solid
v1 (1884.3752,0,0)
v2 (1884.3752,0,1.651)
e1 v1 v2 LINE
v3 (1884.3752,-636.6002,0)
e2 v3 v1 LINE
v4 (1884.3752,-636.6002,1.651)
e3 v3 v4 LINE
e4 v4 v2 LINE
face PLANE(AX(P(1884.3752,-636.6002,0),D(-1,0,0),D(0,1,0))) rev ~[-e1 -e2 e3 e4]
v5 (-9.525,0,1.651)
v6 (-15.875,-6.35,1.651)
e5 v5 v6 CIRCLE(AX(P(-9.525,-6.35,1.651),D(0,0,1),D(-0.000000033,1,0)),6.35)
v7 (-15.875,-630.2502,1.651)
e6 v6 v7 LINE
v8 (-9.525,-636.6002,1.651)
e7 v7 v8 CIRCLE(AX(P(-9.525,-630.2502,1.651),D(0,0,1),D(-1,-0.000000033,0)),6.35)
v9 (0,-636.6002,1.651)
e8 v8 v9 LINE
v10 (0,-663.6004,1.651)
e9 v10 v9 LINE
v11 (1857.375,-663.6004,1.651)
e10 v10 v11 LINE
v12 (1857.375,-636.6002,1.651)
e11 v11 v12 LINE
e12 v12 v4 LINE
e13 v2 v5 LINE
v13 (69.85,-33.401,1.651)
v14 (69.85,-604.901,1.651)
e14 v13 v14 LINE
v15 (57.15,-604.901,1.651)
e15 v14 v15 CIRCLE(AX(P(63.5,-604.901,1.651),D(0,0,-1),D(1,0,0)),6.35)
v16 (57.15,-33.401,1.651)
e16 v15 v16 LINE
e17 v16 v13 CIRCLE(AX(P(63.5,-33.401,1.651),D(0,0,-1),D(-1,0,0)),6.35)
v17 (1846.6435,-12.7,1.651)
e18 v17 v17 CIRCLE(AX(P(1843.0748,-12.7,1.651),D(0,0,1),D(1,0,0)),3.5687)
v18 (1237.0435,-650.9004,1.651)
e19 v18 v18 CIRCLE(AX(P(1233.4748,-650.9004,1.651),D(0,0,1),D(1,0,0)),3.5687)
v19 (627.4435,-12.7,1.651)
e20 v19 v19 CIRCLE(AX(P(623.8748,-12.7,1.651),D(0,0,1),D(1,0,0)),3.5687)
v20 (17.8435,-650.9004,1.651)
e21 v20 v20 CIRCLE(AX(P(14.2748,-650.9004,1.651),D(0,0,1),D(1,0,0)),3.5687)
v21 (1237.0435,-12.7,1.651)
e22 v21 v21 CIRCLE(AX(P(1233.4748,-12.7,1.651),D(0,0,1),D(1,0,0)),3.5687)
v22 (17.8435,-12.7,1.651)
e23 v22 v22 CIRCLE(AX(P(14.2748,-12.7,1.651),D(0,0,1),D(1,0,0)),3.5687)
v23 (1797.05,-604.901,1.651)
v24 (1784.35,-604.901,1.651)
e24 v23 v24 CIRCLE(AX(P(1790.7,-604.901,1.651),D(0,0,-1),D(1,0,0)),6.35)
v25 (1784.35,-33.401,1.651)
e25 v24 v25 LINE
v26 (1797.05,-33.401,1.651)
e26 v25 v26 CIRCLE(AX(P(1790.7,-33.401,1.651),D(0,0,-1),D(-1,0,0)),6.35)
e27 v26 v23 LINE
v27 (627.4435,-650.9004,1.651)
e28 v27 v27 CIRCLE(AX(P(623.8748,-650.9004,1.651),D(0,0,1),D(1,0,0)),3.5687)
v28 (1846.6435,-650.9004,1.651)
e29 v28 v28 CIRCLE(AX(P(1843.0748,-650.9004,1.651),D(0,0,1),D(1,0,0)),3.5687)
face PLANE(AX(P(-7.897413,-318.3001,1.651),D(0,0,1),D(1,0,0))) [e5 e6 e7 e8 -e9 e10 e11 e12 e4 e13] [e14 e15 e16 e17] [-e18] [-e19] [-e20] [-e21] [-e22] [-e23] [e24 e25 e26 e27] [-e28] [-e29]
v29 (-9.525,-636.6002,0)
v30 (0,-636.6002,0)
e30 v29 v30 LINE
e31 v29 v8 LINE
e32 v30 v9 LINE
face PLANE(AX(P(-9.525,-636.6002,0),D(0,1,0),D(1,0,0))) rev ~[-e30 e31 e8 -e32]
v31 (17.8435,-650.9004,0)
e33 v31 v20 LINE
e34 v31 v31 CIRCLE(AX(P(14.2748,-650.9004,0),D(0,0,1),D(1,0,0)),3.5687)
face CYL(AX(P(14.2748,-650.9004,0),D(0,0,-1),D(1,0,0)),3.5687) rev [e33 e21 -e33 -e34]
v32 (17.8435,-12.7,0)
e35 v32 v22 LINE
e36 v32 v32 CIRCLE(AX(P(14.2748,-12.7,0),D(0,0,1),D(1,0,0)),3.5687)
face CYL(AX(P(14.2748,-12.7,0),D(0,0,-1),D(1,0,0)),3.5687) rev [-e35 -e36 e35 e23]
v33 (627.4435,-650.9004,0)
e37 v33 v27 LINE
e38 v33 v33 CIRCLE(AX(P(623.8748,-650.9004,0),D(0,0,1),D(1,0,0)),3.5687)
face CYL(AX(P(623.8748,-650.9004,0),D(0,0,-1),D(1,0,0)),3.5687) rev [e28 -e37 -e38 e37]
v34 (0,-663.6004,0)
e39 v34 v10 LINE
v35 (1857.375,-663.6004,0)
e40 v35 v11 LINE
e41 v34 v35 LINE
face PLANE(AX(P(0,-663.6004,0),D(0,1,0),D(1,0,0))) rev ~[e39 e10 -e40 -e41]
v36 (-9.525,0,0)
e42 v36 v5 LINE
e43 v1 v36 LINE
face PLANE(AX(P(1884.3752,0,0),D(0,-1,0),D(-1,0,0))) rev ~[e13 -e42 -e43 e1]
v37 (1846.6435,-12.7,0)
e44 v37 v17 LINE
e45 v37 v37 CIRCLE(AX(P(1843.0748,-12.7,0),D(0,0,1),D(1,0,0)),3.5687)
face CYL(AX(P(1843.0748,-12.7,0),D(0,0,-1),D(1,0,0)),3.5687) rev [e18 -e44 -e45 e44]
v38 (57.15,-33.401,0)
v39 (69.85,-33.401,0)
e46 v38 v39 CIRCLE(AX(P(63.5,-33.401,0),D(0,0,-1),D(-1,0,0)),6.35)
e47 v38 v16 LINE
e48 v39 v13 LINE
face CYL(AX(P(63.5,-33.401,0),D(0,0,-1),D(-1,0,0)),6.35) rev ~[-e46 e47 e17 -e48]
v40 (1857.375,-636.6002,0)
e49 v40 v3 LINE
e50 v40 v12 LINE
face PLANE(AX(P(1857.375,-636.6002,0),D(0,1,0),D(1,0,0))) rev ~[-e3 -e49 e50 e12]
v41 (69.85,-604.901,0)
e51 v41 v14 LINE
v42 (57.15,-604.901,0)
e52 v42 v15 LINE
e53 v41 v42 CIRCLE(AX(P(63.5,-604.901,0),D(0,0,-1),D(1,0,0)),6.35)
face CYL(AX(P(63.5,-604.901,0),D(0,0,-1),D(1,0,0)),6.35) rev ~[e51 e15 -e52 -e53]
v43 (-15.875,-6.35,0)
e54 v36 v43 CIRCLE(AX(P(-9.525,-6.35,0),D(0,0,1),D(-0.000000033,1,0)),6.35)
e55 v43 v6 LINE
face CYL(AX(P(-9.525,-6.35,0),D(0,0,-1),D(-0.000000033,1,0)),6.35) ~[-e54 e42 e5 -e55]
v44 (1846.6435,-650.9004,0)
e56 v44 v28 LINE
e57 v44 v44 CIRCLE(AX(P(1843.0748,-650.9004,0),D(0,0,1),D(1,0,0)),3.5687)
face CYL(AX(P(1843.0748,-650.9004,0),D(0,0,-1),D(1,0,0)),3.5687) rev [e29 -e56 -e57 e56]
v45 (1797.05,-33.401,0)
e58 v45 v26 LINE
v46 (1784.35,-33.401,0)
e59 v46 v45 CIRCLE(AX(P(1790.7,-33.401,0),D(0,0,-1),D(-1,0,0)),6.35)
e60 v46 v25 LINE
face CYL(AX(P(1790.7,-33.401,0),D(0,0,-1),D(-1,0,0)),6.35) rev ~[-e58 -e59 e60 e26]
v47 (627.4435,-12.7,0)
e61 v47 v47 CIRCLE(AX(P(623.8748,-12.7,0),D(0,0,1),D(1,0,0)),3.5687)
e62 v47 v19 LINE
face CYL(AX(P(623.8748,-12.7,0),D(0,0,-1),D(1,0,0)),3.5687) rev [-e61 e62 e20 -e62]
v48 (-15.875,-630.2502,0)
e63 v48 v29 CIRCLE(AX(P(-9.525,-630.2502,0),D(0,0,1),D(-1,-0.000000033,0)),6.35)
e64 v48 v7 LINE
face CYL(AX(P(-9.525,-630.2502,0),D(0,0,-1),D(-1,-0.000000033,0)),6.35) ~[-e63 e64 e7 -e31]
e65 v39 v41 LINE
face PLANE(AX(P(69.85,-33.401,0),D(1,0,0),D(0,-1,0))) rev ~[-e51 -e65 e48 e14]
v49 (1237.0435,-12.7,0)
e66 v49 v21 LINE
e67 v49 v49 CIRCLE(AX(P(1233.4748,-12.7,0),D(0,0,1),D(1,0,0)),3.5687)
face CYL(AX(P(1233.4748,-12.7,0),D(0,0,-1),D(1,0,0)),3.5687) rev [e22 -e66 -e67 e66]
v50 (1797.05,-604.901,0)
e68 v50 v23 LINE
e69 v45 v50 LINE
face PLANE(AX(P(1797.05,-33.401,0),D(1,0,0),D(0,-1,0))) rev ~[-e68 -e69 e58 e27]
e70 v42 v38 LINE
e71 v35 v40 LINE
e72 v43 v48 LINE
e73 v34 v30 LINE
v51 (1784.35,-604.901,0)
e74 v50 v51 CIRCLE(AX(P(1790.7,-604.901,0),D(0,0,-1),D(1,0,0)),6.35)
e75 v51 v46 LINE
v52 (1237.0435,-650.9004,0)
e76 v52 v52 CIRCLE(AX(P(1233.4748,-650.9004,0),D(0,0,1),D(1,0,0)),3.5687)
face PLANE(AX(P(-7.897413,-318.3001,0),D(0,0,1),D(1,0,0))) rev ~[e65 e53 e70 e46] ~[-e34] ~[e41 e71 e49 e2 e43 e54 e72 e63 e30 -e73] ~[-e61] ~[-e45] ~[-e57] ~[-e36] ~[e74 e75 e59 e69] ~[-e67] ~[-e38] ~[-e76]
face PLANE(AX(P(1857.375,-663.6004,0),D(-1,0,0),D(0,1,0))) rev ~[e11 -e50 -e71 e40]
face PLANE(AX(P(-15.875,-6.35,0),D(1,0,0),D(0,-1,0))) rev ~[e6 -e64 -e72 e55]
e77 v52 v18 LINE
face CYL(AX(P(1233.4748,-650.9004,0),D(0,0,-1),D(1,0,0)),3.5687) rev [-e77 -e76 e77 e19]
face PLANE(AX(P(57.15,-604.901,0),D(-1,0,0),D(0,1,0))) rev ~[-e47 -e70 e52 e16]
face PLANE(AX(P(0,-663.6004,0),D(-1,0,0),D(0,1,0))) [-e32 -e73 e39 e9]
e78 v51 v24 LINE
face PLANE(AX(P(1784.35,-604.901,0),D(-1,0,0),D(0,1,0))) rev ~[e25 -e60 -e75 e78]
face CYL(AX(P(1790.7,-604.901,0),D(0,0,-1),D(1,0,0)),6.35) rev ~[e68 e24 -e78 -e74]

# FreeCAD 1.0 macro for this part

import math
import FreeCAD as App
import Part
import Sketcher
Q = App.Units.Quantity

doc = App.newDocument("Part")
body = doc.addObject("PartDesign::Body", "Body")

# Sketch on XY plane
sketch1 = body.newObject("Sketcher::SketchObject", "Sketch")
sketch1.AttachmentSupport = (doc.getObject("XY_Plane"), [""])
sketch1.MapMode = "FlatFace"
sketch1.addGeometry(Part.ArcOfCircle(Part.Circle(App.Vector(-9.525, -6.35, 0), App.Vector(0, 0, 1), 6.35), math.radians(90.000002), math.radians(179.999998)), False)
sketch1.addGeometry(Part.LineSegment(App.Vector(-15.875, -6.35, 0), App.Vector(-15.875, -630.2502, 0)), False)
sketch1.addGeometry(Part.ArcOfCircle(Part.Circle(App.Vector(-9.525, -630.2502, 0), App.Vector(0, 0, 1), 6.35), math.radians(-179.999998), math.radians(-90.000002)), False)
sketch1.addGeometry(Part.LineSegment(App.Vector(-9.525, -636.6002, 0), App.Vector(0, -636.6002, 0)), False)
sketch1.addGeometry(Part.LineSegment(App.Vector(0, -636.6002, 0), App.Vector(0, -663.6004, 0)), False)
sketch1.addGeometry(Part.LineSegment(App.Vector(0, -663.6004, 0), App.Vector(1857.375, -663.6004, 0)), False)
sketch1.addGeometry(Part.LineSegment(App.Vector(1857.375, -663.6004, 0), App.Vector(1857.375, -636.6002, 0)), False)
sketch1.addGeometry(Part.LineSegment(App.Vector(1857.375, -636.6002, 0), App.Vector(1884.3752, -636.6002, 0)), False)
sketch1.addGeometry(Part.LineSegment(App.Vector(1884.3752, -636.6002, 0), App.Vector(1884.3752, 0, 0)), False)
sketch1.addGeometry(Part.LineSegment(App.Vector(1884.3752, 0, 0), App.Vector(-9.525, 0, 0)), False)
sketch1.addGeometry(Part.Circle(App.Vector(14.2748, -650.9004, 0), App.Vector(0, 0, 1), 3.5687), False)
sketch1.addGeometry(Part.Circle(App.Vector(623.8748, -650.9004, 0), App.Vector(0, 0, 1), 3.5687), False)
sketch1.addGeometry(Part.Circle(App.Vector(1233.4748, -650.9004, 0), App.Vector(0, 0, 1), 3.5687), False)
sketch1.addGeometry(Part.Circle(App.Vector(1843.0748, -650.9004, 0), App.Vector(0, 0, 1), 3.5687), False)
sketch1.addGeometry(Part.LineSegment(App.Vector(57.15, -604.901, 0), App.Vector(57.15, -33.401, 0)), False)
sketch1.addGeometry(Part.ArcOfCircle(Part.Circle(App.Vector(63.5, -33.401, 0), App.Vector(0, 0, 1), 6.35), math.radians(0), math.radians(180)), False)
sketch1.addGeometry(Part.LineSegment(App.Vector(69.85, -33.401, 0), App.Vector(69.85, -604.901, 0)), False)
sketch1.addGeometry(Part.ArcOfCircle(Part.Circle(App.Vector(63.5, -604.901, 0), App.Vector(0, 0, 1), 6.35), math.radians(180), math.radians(360)), False)
sketch1.addGeometry(Part.Circle(App.Vector(14.2748, -12.7, 0), App.Vector(0, 0, 1), 3.5687), False)
sketch1.addGeometry(Part.Circle(App.Vector(623.8748, -12.7, 0), App.Vector(0, 0, 1), 3.5687), False)
sketch1.addGeometry(Part.LineSegment(App.Vector(1784.35, -604.901, 0), App.Vector(1784.35, -33.401, 0)), False)
sketch1.addGeometry(Part.ArcOfCircle(Part.Circle(App.Vector(1790.7, -33.401, 0), App.Vector(0, 0, 1), 6.35), math.radians(0), math.radians(180)), False)
sketch1.addGeometry(Part.LineSegment(App.Vector(1797.05, -33.401, 0), App.Vector(1797.05, -604.901, 0)), False)
sketch1.addGeometry(Part.ArcOfCircle(Part.Circle(App.Vector(1790.7, -604.901, 0), App.Vector(0, 0, 1), 6.35), math.radians(180), math.radians(360)), False)
sketch1.addGeometry(Part.Circle(App.Vector(1233.4748, -12.7, 0), App.Vector(0, 0, 1), 3.5687), False)
sketch1.addGeometry(Part.Circle(App.Vector(1843.0748, -12.7, 0), App.Vector(0, 0, 1), 3.5687), False)
sketch1.addConstraint(Sketcher.Constraint("Tangent", 0, 2, 1, 1))
sketch1.addConstraint(Sketcher.Constraint("Tangent", 1, 2, 2, 1))
sketch1.addConstraint(Sketcher.Constraint("Tangent", 2, 2, 3, 1))
sketch1.addConstraint(Sketcher.Constraint("Coincident", 3, 2, 4, 1))
sketch1.addConstraint(Sketcher.Constraint("Coincident", 4, 2, 5, 1))
sketch1.addConstraint(Sketcher.Constraint("Coincident", 5, 2, 6, 1))
sketch1.addConstraint(Sketcher.Constraint("Coincident", 6, 2, 7, 1))
sketch1.addConstraint(Sketcher.Constraint("Coincident", 7, 2, 8, 1))
sketch1.addConstraint(Sketcher.Constraint("Coincident", 8, 2, 9, 1))
sketch1.addConstraint(Sketcher.Constraint("Tangent", 9, 2, 0, 1))
sketch1.addConstraint(Sketcher.Constraint("Tangent", 14, 2, 15, 2))
sketch1.addConstraint(Sketcher.Constraint("Tangent", 15, 1, 16, 1))
sketch1.addConstraint(Sketcher.Constraint("Tangent", 16, 2, 17, 2))
sketch1.addConstraint(Sketcher.Constraint("Tangent", 17, 1, 14, 1))
sketch1.addConstraint(Sketcher.Constraint("Tangent", 20, 2, 21, 2))
sketch1.addConstraint(Sketcher.Constraint("Tangent", 21, 1, 22, 1))
sketch1.addConstraint(Sketcher.Constraint("Tangent", 22, 2, 23, 2))
sketch1.addConstraint(Sketcher.Constraint("Tangent", 23, 1, 20, 1))
sketch1.addConstraint(Sketcher.Constraint("Vertical", 1))
sketch1.addConstraint(Sketcher.Constraint("Horizontal", 3))
sketch1.addConstraint(Sketcher.Constraint("Vertical", 4))
sketch1.addConstraint(Sketcher.Constraint("Horizontal", 5))
sketch1.addConstraint(Sketcher.Constraint("Vertical", 6))
sketch1.addConstraint(Sketcher.Constraint("Horizontal", 7))
sketch1.addConstraint(Sketcher.Constraint("Vertical", 8))
sketch1.addConstraint(Sketcher.Constraint("Horizontal", 9))
sketch1.addConstraint(Sketcher.Constraint("Vertical", 14))
sketch1.addConstraint(Sketcher.Constraint("Vertical", 16))
sketch1.addConstraint(Sketcher.Constraint("Vertical", 20))
sketch1.addConstraint(Sketcher.Constraint("Vertical", 22))
sketch1.addConstraint(Sketcher.Constraint("Equal", 0, 2))
sketch1.addConstraint(Sketcher.Constraint("Equal", 10, 11))
sketch1.addConstraint(Sketcher.Constraint("Equal", 11, 12))
sketch1.addConstraint(Sketcher.Constraint("Equal", 12, 13))
sketch1.addConstraint(Sketcher.Constraint("Equal", 2, 15))
sketch1.addConstraint(Sketcher.Constraint("Equal", 13, 18))
sketch1.addConstraint(Sketcher.Constraint("Equal", 18, 19))
sketch1.addConstraint(Sketcher.Constraint("Equal", 17, 21))
sketch1.addConstraint(Sketcher.Constraint("Equal", 19, 24))
sketch1.addConstraint(Sketcher.Constraint("Equal", 24, 25))
sketch1.addConstraint(Sketcher.Constraint("PointOnObject", 3, 2, -2))
sketch1.addConstraint(Sketcher.Constraint("PointOnObject", 8, 2, -1))
sketch1.addConstraint(Sketcher.Constraint("Horizontal", 10, 3, 11, 3))
sketch1.addConstraint(Sketcher.Constraint("Horizontal", 11, 3, 12, 3))
sketch1.addConstraint(Sketcher.Constraint("Horizontal", 12, 3, 13, 3))
sketch1.addConstraint(Sketcher.Constraint("Horizontal", 18, 3, 19, 3))
sketch1.addConstraint(Sketcher.Constraint("Horizontal", 15, 3, 21, 3))
sketch1.addConstraint(Sketcher.Constraint("Horizontal", 17, 3, 23, 3))
sketch1.addConstraint(Sketcher.Constraint("Horizontal", 19, 3, 24, 3))
sketch1.addConstraint(Sketcher.Constraint("Horizontal", 24, 3, 25, 3))
sketch1.addConstraint(Sketcher.Constraint("Horizontal", 3, 2, 6, 2))
sketch1.addConstraint(Sketcher.Constraint("Vertical", 10, 3, 18, 3))
sketch1.addConstraint(Sketcher.Constraint("Vertical", 11, 3, 19, 3))
sketch1.addConstraint(Sketcher.Constraint("Vertical", 12, 3, 24, 3))
sketch1.addConstraint(Sketcher.Constraint("Vertical", 13, 3, 25, 3))
sketch1.addConstraint(Sketcher.Constraint("Equal", 7, 4))
sketch1.addConstraint(Sketcher.Constraint("Radius", 0, Q("0.25 in")))
sketch1.addConstraint(Sketcher.Constraint("Diameter", 10, Q("0.281 in")))
sketch1.addConstraint(Sketcher.Constraint("DistanceY", 14, 1, 14, 2, Q("22.5 in")))
sketch1.addConstraint(Sketcher.Constraint("DistanceX", 10, 3, 11, 3, Q("24 in")))
sketch1.addConstraint(Sketcher.Constraint("DistanceX", 11, 3, 12, 3, Q("24 in")))
sketch1.addConstraint(Sketcher.Constraint("DistanceX", 12, 3, 13, 3, Q("24 in")))
sketch1.addConstraint(Sketcher.Constraint("DistanceX", 15, 3, 21, 3, Q("68 in")))
sketch1.addConstraint(Sketcher.Constraint("DistanceX", -1, 1, 15, 3, Q("2.5 in")))
sketch1.addConstraint(Sketcher.Constraint("DistanceY", 18, 3, -1, 1, Q("0.5 in")))
sketch1.addConstraint(Sketcher.Constraint("DistanceY", 4, 2, 10, 3, Q("0.5 in")))
sketch1.addConstraint(Sketcher.Constraint("DistanceX", 3, 1, 3, 2, Q("0.375 in")))
sketch1.addConstraint(Sketcher.Constraint("DistanceX", 5, 1, 5, 2, Q("73.125 in")))
sketch1.addConstraint(Sketcher.Constraint("DistanceX", 7, 1, 7, 2, Q("1.063 in")))
sketch1.addConstraint(Sketcher.Constraint("DistanceY", 1, 2, 1, 1, Q("24.563 in")))
sketch1.addConstraint(Sketcher.Constraint("DistanceX", -1, 1, 10, 3, Q("0.562 in")))
sketch1.addConstraint(Sketcher.Constraint("DistanceY", 15, 3, -1, 1, Q("1.315 in")))
pad1 = body.newObject("PartDesign::Pad", "Pad")
pad1.Profile = sketch1
pad1.Length = Q("0.065 in")

doc.recompute()
